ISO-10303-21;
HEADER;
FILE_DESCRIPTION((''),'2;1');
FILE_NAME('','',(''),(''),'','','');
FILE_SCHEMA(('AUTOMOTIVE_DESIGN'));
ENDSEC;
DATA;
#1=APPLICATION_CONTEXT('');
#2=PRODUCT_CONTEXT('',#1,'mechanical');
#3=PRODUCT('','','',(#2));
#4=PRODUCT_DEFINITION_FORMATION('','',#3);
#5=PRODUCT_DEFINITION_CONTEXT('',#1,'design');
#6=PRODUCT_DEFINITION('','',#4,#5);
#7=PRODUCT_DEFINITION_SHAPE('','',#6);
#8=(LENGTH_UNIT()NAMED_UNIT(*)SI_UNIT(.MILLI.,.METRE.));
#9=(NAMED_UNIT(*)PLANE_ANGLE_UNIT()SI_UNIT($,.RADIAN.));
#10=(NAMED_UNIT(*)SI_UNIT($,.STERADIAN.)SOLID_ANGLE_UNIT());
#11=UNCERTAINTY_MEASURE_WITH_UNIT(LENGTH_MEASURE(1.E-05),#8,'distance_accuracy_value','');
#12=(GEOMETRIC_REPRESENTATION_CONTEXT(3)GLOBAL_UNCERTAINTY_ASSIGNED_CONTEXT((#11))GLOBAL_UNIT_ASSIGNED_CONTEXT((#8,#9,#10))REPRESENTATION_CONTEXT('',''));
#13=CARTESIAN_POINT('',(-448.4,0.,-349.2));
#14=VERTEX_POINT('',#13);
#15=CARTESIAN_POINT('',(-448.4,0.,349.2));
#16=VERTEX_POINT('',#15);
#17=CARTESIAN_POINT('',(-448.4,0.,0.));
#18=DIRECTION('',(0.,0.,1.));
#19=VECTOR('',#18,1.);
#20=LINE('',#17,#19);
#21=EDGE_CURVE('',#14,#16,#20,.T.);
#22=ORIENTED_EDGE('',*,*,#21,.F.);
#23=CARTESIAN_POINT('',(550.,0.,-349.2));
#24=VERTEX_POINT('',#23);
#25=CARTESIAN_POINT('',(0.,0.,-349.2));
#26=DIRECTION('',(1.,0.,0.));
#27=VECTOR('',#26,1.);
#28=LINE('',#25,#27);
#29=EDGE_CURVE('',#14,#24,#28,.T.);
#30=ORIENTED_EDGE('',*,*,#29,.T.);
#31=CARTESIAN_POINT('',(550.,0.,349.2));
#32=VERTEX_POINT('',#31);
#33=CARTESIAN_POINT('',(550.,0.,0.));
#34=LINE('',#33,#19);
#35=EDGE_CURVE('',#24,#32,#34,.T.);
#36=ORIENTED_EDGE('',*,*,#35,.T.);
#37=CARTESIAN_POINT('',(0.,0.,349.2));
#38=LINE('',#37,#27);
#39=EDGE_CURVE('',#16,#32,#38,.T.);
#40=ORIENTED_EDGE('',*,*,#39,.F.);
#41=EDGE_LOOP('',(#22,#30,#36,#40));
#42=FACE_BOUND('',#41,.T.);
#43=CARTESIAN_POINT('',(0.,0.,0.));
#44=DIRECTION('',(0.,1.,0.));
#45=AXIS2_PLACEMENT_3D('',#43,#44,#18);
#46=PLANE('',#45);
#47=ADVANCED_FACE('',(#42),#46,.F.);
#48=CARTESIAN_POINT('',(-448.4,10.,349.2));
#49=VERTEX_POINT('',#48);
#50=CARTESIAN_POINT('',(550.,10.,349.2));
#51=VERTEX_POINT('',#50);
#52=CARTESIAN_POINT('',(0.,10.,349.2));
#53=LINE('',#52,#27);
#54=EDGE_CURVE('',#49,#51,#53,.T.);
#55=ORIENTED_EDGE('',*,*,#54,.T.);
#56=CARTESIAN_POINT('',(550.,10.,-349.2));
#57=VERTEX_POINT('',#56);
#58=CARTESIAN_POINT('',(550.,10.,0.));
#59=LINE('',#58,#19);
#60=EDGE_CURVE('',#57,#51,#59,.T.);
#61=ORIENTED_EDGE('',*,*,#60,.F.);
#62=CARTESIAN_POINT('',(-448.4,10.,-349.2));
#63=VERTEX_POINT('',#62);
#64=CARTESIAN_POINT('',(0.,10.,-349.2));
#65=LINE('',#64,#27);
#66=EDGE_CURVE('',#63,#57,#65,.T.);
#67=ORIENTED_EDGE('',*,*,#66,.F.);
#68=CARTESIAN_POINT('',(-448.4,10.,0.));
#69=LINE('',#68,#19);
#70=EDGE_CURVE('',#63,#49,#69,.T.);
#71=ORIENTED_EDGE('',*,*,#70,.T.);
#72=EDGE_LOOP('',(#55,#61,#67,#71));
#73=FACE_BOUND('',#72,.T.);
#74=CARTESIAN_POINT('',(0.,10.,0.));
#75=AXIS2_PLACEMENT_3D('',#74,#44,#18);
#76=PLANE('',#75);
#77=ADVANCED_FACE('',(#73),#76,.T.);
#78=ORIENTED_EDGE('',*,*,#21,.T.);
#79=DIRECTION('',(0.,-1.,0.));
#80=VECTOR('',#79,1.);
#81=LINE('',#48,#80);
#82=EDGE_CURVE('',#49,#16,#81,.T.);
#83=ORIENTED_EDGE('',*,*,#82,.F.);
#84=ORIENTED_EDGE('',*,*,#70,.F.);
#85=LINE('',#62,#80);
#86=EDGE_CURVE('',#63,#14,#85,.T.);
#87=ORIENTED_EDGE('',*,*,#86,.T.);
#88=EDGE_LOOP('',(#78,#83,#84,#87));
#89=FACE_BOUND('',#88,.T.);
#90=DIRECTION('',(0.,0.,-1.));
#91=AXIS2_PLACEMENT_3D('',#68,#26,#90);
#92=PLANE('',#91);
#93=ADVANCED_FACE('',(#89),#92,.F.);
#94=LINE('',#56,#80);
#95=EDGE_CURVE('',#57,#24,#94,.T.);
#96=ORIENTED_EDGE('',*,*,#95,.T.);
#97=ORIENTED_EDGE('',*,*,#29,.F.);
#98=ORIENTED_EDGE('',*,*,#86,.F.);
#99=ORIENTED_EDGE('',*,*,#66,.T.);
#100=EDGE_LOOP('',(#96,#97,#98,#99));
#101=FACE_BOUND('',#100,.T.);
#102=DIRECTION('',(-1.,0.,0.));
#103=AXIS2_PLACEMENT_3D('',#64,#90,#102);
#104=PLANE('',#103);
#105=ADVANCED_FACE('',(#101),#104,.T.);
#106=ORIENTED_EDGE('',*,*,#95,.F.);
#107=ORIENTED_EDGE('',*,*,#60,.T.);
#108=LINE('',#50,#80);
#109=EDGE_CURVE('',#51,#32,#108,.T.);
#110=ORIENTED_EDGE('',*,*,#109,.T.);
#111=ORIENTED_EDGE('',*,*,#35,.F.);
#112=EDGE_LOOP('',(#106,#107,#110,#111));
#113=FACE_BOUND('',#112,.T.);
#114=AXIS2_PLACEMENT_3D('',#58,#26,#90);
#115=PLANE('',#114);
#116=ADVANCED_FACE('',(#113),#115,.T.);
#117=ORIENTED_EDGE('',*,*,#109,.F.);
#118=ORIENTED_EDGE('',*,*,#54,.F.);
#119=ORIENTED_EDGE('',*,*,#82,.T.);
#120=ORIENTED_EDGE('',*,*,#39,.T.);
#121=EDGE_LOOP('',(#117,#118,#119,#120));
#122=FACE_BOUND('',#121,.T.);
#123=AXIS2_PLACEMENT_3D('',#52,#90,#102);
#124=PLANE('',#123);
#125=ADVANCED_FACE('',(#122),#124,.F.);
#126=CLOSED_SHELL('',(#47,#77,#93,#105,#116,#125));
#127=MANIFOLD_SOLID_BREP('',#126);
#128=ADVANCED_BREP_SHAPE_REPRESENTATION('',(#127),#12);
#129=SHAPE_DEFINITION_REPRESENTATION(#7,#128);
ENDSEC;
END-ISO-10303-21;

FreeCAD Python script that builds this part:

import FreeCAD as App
import Part
import Sketcher

V = App.Vector

doc = App.newDocument("Part")
body = doc.addObject("PartDesign::Body", "Body")

# Sketch on XZ plane
sketch1 = body.newObject("Sketcher::SketchObject", "Sketch")
sketch1.AttachmentSupport = (doc.getObject("XZ_Plane"), [""])
sketch1.MapMode = "FlatFace"
sketch1.addGeometry([
    Part.LineSegment(V(-448, -349, 0), V(-448, 349, 0)),
    Part.LineSegment(V(-448, 349, 0), V(550, 349, 0)),
    Part.LineSegment(V(550, 349, 0), V(550, -349, 0)),
    Part.LineSegment(V(550, -349, 0), V(-448, -349, 0)),
], False)
sketch1.addConstraint([
    Sketcher.Constraint("Coincident", 0, 2, 1, 1),
    Sketcher.Constraint("Coincident", 1, 2, 2, 1),
    Sketcher.Constraint("Coincident", 2, 2, 3, 1),
    Sketcher.Constraint("Coincident", 3, 2, 0, 1),
    Sketcher.Constraint("Vertical", 0),
    Sketcher.Constraint("Horizontal", 1),
    Sketcher.Constraint("Vertical", 2),
    Sketcher.Constraint("Horizontal", 3),
    Sketcher.Constraint("DistanceX", 1, 1, 1, 2, 998.4),
    Sketcher.Constraint("DistanceY", 0, 1, 0, 2, 698.4),
    Sketcher.Constraint("DistanceX", -1, 1, 1, 2, 550.0),
    Sketcher.Constraint("DistanceY", -1, 1, 0, 2, 349.2),
])
pad1 = body.newObject("PartDesign::Pad", "Pad")
pad1.Profile = sketch1
pad1.Length = 10
pad1.Reversed = True

doc.recompute()
